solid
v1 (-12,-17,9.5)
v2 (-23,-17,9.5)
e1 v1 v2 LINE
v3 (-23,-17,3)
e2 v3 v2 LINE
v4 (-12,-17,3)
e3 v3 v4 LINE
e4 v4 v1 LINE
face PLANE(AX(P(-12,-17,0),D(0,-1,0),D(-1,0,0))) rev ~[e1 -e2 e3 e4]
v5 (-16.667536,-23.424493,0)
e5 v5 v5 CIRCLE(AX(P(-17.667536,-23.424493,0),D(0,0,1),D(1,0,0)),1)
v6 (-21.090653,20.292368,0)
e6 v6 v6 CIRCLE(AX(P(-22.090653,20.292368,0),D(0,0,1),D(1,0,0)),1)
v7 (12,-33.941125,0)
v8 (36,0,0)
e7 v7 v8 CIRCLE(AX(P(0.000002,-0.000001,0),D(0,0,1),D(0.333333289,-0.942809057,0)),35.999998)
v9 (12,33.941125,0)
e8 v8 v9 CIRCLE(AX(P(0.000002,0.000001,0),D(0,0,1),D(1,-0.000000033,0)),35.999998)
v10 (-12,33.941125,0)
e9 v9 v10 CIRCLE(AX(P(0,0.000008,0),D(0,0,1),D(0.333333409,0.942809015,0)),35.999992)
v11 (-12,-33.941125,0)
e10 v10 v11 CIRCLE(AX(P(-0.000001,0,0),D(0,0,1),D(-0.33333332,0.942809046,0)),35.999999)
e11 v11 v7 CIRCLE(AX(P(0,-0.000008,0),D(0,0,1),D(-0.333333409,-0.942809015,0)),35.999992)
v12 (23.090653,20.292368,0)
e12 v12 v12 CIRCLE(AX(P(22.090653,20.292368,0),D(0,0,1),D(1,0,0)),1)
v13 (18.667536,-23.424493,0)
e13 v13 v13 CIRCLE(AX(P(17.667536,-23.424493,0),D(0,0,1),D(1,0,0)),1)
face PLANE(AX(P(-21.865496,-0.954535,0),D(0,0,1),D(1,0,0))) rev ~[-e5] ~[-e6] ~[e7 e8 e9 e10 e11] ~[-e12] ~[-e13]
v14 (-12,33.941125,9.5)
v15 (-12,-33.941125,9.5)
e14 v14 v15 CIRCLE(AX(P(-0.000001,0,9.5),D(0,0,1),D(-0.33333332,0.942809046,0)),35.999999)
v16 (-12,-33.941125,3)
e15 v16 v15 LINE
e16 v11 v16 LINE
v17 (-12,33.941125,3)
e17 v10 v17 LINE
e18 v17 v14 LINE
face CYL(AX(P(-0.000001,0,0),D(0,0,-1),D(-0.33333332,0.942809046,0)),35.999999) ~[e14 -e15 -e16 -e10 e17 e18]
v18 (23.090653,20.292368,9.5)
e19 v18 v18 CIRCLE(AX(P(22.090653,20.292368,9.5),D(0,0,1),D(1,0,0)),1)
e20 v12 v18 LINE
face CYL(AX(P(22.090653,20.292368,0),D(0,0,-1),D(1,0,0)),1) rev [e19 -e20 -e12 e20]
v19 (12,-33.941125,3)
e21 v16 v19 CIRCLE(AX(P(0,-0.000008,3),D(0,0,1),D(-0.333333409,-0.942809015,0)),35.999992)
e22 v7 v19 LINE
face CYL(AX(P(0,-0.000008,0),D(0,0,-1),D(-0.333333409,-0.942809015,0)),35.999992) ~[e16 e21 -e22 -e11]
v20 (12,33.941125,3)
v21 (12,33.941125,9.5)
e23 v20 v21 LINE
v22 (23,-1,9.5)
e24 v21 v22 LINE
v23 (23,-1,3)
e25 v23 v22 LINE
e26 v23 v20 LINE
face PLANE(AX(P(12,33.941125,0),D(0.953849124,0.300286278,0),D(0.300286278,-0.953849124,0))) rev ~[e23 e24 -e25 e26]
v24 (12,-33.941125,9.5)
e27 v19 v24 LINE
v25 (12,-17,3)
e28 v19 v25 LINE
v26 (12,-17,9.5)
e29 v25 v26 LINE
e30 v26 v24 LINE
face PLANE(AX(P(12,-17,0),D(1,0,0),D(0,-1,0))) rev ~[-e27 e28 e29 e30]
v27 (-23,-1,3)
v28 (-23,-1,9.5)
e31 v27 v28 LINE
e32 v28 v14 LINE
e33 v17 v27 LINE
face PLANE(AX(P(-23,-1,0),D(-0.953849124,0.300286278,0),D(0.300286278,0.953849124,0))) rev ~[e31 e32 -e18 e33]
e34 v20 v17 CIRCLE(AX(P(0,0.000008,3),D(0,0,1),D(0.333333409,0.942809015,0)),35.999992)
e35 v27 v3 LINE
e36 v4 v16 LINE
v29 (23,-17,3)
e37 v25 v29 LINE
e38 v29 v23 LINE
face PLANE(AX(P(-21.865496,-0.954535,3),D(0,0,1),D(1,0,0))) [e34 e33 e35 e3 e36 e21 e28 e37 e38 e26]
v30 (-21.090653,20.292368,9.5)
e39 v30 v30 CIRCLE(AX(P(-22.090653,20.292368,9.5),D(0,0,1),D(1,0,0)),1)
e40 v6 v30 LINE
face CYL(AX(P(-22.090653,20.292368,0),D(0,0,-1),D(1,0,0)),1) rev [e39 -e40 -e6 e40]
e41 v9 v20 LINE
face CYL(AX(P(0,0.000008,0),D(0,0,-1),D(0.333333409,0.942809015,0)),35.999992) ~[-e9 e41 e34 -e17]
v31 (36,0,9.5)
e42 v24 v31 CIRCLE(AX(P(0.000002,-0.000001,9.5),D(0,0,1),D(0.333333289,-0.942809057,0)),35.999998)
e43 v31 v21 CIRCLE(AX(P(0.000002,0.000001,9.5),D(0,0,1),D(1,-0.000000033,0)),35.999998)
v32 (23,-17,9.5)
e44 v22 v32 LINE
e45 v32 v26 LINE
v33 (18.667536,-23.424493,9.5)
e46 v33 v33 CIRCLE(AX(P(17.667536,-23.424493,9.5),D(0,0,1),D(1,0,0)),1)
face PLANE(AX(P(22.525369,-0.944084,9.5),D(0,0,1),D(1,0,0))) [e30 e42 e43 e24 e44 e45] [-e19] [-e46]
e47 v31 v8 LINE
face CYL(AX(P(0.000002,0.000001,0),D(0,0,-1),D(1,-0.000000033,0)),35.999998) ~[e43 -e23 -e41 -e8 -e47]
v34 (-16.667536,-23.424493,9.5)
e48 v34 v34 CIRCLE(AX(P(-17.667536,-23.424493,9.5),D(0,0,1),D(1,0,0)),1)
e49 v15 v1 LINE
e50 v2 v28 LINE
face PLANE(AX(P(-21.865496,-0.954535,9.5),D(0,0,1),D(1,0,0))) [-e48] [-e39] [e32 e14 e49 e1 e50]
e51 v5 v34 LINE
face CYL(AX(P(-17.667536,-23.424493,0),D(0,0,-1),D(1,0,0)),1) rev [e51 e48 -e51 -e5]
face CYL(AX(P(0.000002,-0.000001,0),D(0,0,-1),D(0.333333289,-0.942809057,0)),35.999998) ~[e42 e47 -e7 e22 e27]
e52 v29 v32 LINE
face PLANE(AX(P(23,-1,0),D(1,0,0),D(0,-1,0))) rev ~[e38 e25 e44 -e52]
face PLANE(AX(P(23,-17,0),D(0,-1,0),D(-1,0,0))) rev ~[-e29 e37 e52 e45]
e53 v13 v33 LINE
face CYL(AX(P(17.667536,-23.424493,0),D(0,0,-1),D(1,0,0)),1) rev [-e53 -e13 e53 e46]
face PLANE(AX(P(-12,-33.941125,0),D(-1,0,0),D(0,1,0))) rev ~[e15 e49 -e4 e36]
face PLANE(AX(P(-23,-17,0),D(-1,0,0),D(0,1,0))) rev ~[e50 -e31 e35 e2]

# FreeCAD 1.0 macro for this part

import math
import FreeCAD as App
import Part
import Sketcher
from FreeCAD import Vector
Q = App.Units.Quantity

doc = App.newDocument("Part")
params = doc.addObject("Spreadsheet::Sheet", "Params")
for row, (alias, value) in enumerate([
    ("sketch1_diameter", "2 mm"),
    ("sketch1_radius", "35.999999 mm"),
    ("pad1_length", "3 mm"),
    ("sketch2_diameter", "2 mm"),
    ("sketch2_radius", "35.999999 mm"),
    ("sketch2_width", "11 mm"),
    ("sketch2_height", "16 mm"),
    ("pad2_length", "9.5 mm"),
], start=1):
    params.set(f"A{row}", alias)
    params.set(f"B{row}", "=" + value)
    params.setAlias(f"B{row}", alias)

body = doc.addObject("PartDesign::Body", "Body")

sketch1 = body.newObject("Sketcher::SketchObject", "Sketch")
sketch1.AttachmentSupport = (doc.getObject("XY_Plane"), [""])
sketch1.MapMode = "FlatFace"
sketch1.addGeometry(Part.ArcOfCircle(Part.Circle(Vector(0, 0, 0), Vector(0, 0, 1), 36), math.radians(109), math.radians(251)), False)
sketch1.addGeometry(Part.ArcOfCircle(Part.Circle(Vector(0, 0, 0), Vector(0, 0, 1), 36), math.radians(-109), math.radians(-71)), False)
sketch1.addGeometry(Part.ArcOfCircle(Part.Circle(Vector(0, 0, 0), Vector(0, 0, 1), 36), math.radians(-71), math.radians(0)), False)
sketch1.addGeometry(Part.ArcOfCircle(Part.Circle(Vector(0, 0, 0), Vector(0, 0, 1), 36), math.radians(0), math.radians(71)), False)
sketch1.addGeometry(Part.ArcOfCircle(Part.Circle(Vector(0, 0, 0), Vector(0, 0, 1), 36), math.radians(71), math.radians(109)), False)
sketch1.addGeometry(Part.Circle(Vector(-17.7, -23.4, 0), Vector(0, 0, 1), 1), False)
sketch1.addGeometry(Part.Circle(Vector(17.7, -23.4, 0), Vector(0, 0, 1), 1), False)
sketch1.addGeometry(Part.Circle(Vector(-22.1, 20.3, 0), Vector(0, 0, 1), 1), False)
sketch1.addGeometry(Part.Circle(Vector(22.1, 20.3, 0), Vector(0, 0, 1), 1), False)
sketch1.addConstraint(Sketcher.Constraint("Tangent", 0, 2, 1, 1))
sketch1.addConstraint(Sketcher.Constraint("Tangent", 1, 2, 2, 1))
sketch1.addConstraint(Sketcher.Constraint("Tangent", 2, 2, 3, 1))
sketch1.addConstraint(Sketcher.Constraint("Tangent", 3, 2, 4, 1))
sketch1.addConstraint(Sketcher.Constraint("Tangent", 4, 2, 0, 1))
sketch1.addConstraint(Sketcher.Constraint("Coincident", 0, 3, -1, 1))
sketch1.addConstraint(Sketcher.Constraint("Coincident", 2, 3, -1, 1))
sketch1.addConstraint(Sketcher.Constraint("Equal", 5, 6))
sketch1.addConstraint(Sketcher.Constraint("Equal", 6, 7))
sketch1.addConstraint(Sketcher.Constraint("Equal", 7, 8))
sketch1.addConstraint(Sketcher.Constraint("Symmetric", 5, 3, 6, 3, -2))
sketch1.addConstraint(Sketcher.Constraint("Symmetric", 7, 3, 8, 3, -2))
sketch1.addConstraint(Sketcher.Constraint("PointOnObject", 2, 2, -1))
sketch1.addConstraint(Sketcher.Constraint("Horizontal", 0, 2, 1, 2))
sketch1.addConstraint(Sketcher.Constraint("Horizontal", 3, 2, 4, 2))
sketch1.addConstraint(Sketcher.Constraint("Vertical", 1, 2, 3, 2))
sketch1.addConstraint(Sketcher.Constraint("Diameter", 5, Q("2 mm")))
sketch1.addConstraint(Sketcher.Constraint("Radius", 0, Q("35.999999 mm")))
sketch1.addConstraint(Sketcher.Constraint("DistanceX", 0, 2, -1, 1, Q("12 mm")))
sketch1.addConstraint(Sketcher.Constraint("DistanceY", 5, 3, 4, 3, Q("23.424501 mm")))
sketch1.addConstraint(Sketcher.Constraint("DistanceY", -1, 1, 7, 3, Q("20.292368 mm")))
sketch1.addConstraint(Sketcher.Constraint("DistanceX", 5, 3, 2, 3, Q("17.667538 mm")))
sketch1.addConstraint(Sketcher.Constraint("DistanceX", 3, 3, 8, 3, Q("22.090651 mm")))
sketch1.setExpression("Constraints[16]", "Params.sketch1_diameter")
sketch1.setExpression("Constraints[17]", "Params.sketch1_radius")
pad1 = body.newObject("PartDesign::Pad", "Pad")
pad1.Profile = sketch1
pad1.setExpression("Length", "Params.pad1_length")

sketch2 = body.newObject("Sketcher::SketchObject", "Sketch001")
sketch2.AttachmentSupport = (doc.getObject("XY_Plane"), [""])
sketch2.MapMode = "FlatFace"
sketch2.addGeometry(Part.LineSegment(Vector(-23, -1, 0), Vector(-12, 33.9, 0)), False)
sketch2.addGeometry(Part.ArcOfCircle(Part.Circle(Vector(0, 0, 0), Vector(0, 0, 1), 36), math.radians(109), math.radians(251)), False)
sketch2.addGeometry(Part.LineSegment(Vector(-12, -33.9, 0), Vector(-12, -17, 0)), False)
sketch2.addGeometry(Part.LineSegment(Vector(-12, -17, 0), Vector(-23, -17, 0)), False)
sketch2.addGeometry(Part.LineSegment(Vector(-23, -17, 0), Vector(-23, -1, 0)), False)
sketch2.addGeometry(Part.Circle(Vector(-17.7, -23.4, 0), Vector(0, 0, 1), 1), False)
sketch2.addGeometry(Part.Circle(Vector(-22.1, 20.3, 0), Vector(0, 0, 1), 1), False)
sketch2.addGeometry(Part.ArcOfCircle(Part.Circle(Vector(0, 0, 0), Vector(0, 0, 1), 36), math.radians(-71), math.radians(0)), False)
sketch2.addGeometry(Part.ArcOfCircle(Part.Circle(Vector(0, 0, 0), Vector(0, 0, 1), 36), math.radians(0), math.radians(71)), False)
sketch2.addGeometry(Part.LineSegment(Vector(12, 33.9, 0), Vector(23, -1, 0)), False)
sketch2.addGeometry(Part.LineSegment(Vector(23, -1, 0), Vector(23, -17, 0)), False)
sketch2.addGeometry(Part.LineSegment(Vector(23, -17, 0), Vector(12, -17, 0)), False)
sketch2.addGeometry(Part.LineSegment(Vector(12, -17, 0), Vector(12, -33.9, 0)), False)
sketch2.addGeometry(Part.Circle(Vector(17.7, -23.4, 0), Vector(0, 0, 1), 1), False)
sketch2.addGeometry(Part.Circle(Vector(22.1, 20.3, 0), Vector(0, 0, 1), 1), False)
sketch2.addConstraint(Sketcher.Constraint("Coincident", 0, 2, 1, 1))
sketch2.addConstraint(Sketcher.Constraint("Coincident", 1, 2, 2, 1))
sketch2.addConstraint(Sketcher.Constraint("Coincident", 2, 2, 3, 1))
sketch2.addConstraint(Sketcher.Constraint("Coincident", 3, 2, 4, 1))
sketch2.addConstraint(Sketcher.Constraint("Coincident", 4, 2, 0, 1))
sketch2.addConstraint(Sketcher.Constraint("Tangent", 7, 2, 8, 1))
sketch2.addConstraint(Sketcher.Constraint("Coincident", 8, 2, 9, 1))
sketch2.addConstraint(Sketcher.Constraint("Coincident", 9, 2, 10, 1))
sketch2.addConstraint(Sketcher.Constraint("Coincident", 10, 2, 11, 1))
sketch2.addConstraint(Sketcher.Constraint("Coincident", 11, 2, 12, 1))
sketch2.addConstraint(Sketcher.Constraint("Coincident", 12, 2, 7, 1))
sketch2.addConstraint(Sketcher.Constraint("Vertical", 2))
sketch2.addConstraint(Sketcher.Constraint("Horizontal", 3))
sketch2.addConstraint(Sketcher.Constraint("Vertical", 4))
sketch2.addConstraint(Sketcher.Constraint("Vertical", 10))
sketch2.addConstraint(Sketcher.Constraint("Horizontal", 11))
sketch2.addConstraint(Sketcher.Constraint("Vertical", 12))
sketch2.addConstraint(Sketcher.Constraint("Coincident", 1, 3, -1, 1))
sketch2.addConstraint(Sketcher.Constraint("Coincident", 7, 3, -1, 1))
sketch2.addConstraint(Sketcher.Constraint("Equal", 5, 6))
sketch2.addConstraint(Sketcher.Constraint("Equal", 1, 7))
sketch2.addConstraint(Sketcher.Constraint("Equal", 7, 8))
sketch2.addConstraint(Sketcher.Constraint("Equal", 6, 13))
sketch2.addConstraint(Sketcher.Constraint("Equal", 13, 14))
sketch2.addConstraint(Sketcher.Constraint("Symmetric", 5, 3, 13, 3, -2))
sketch2.addConstraint(Sketcher.Constraint("Symmetric", 6, 3, 14, 3, -2))
sketch2.addConstraint(Sketcher.Constraint("Symmetric", 4, 2, 9, 2, -2))
sketch2.addConstraint(Sketcher.Constraint("Symmetric", 2, 2, 11, 2, -2))
sketch2.addConstraint(Sketcher.Constraint("PointOnObject", 7, 2, -1))
sketch2.addConstraint(Sketcher.Constraint("Horizontal", 0, 2, 8, 2))
sketch2.addConstraint(Sketcher.Constraint("Vertical", 0, 2, 1, 2))
sketch2.addConstraint(Sketcher.Constraint("Diameter", 5, Q("2 mm")))
sketch2.addConstraint(Sketcher.Constraint("Radius", 1, Q("35.999999 mm")))
sketch2.addConstraint(Sketcher.Constraint("DistanceX", 3, 2, 3, 1, Q("11 mm")))
sketch2.addConstraint(Sketcher.Constraint("DistanceY", 4, 1, 4, 2, Q("16 mm")))
sketch2.addConstraint(Sketcher.Constraint("DistanceX", 0, 2, -1, 1, Q("12 mm")))
sketch2.addConstraint(Sketcher.Constraint("DistanceY", 2, 2, -1, 1, Q("17 mm")))
sketch2.addConstraint(Sketcher.Constraint("DistanceY", -1, 1, 6, 3, Q("20.292368 mm")))
sketch2.addConstraint(Sketcher.Constraint("DistanceY", 5, 3, 6, 3, Q("43.716861 mm")))
sketch2.addConstraint(Sketcher.Constraint("DistanceX", 5, 3, 7, 3, Q("17.667538 mm")))
sketch2.addConstraint(Sketcher.Constraint("DistanceX", 6, 3, 13, 3, Q("39.758189 mm")))
sketch2.setExpression("Constraints[31]", "Params.sketch2_diameter")
sketch2.setExpression("Constraints[32]", "Params.sketch2_radius")
sketch2.setExpression("Constraints[33]", "Params.sketch2_width")
sketch2.setExpression("Constraints[34]", "Params.sketch2_height")
pad2 = body.newObject("PartDesign::Pad", "Pad001")
pad2.Profile = sketch2
pad2.setExpression("Length", "Params.pad2_length")

doc.recompute()
